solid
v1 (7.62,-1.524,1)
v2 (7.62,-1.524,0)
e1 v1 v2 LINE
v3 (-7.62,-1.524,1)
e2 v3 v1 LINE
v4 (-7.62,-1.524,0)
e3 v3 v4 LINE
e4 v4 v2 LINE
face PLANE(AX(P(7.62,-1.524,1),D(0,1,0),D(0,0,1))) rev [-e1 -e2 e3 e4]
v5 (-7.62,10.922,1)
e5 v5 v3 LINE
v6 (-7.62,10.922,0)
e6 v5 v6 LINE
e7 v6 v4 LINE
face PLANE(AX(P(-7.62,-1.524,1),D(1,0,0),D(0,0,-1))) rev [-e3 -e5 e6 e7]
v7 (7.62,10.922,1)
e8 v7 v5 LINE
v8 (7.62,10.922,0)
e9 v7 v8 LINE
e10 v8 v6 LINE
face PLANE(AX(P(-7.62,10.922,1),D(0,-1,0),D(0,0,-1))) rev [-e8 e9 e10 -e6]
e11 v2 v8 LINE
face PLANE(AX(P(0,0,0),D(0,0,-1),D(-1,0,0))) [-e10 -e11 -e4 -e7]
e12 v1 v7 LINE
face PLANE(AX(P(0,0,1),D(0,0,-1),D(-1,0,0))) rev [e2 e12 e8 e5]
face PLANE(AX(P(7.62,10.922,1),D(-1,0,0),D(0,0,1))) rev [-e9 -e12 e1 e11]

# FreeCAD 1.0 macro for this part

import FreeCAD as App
import Part
import Sketcher

V = App.Vector
Q = App.Units.Quantity


def add_polygon(sketch, points):
    """Adds a closed chain of lines whose ends are joined by coincident constraints."""
    first, n = sketch.GeometryCount, len(points)
    for a, b in zip(points, points[1:] + points[:1]):
        sketch.addGeometry(Part.LineSegment(App.Vector(*a, 0), App.Vector(*b, 0)), False)
    for i in range(n):
        sketch.addConstraint(Sketcher.Constraint("Coincident", first + i, 2, first + (i + 1) % n, 1))

doc = App.newDocument("Part")
body = doc.addObject("PartDesign::Body", "Body")

# Sketch on XY plane
sketch1 = doc.addObject("Sketcher::SketchObject", "Sketch")
body.addObject(sketch1)
sketch1.AttachmentSupport = (doc.XY_Plane, [""])
sketch1.MapMode = "FlatFace"
add_polygon(sketch1, [(-8, 11), (-8, -2), (8, -2), (8, 11)])  # lines 0-3
sketch1.addConstraint(Sketcher.Constraint("Vertical", 0))
sketch1.addConstraint(Sketcher.Constraint("Horizontal", 1))
sketch1.addConstraint(Sketcher.Constraint("Vertical", 2))
sketch1.addConstraint(Sketcher.Constraint("Horizontal", 3))
sketch1.addConstraint(Sketcher.Constraint("DistanceX", 1, 1, 1, 2, Q("0.6 in")))
sketch1.addConstraint(Sketcher.Constraint("DistanceY", 0, 2, 0, 1, Q("0.49 in")))
sketch1.addConstraint(Sketcher.Constraint("DistanceX", 0, 2, -1, 1, Q("0.3 in")))
sketch1.addConstraint(Sketcher.Constraint("DistanceY", 0, 2, -1, 1, Q("0.06 in")))
pad1 = doc.addObject("PartDesign::Pad", "Pad")
body.addObject(pad1)
pad1.Profile = sketch1
pad1.Length = 1

doc.recompute()
